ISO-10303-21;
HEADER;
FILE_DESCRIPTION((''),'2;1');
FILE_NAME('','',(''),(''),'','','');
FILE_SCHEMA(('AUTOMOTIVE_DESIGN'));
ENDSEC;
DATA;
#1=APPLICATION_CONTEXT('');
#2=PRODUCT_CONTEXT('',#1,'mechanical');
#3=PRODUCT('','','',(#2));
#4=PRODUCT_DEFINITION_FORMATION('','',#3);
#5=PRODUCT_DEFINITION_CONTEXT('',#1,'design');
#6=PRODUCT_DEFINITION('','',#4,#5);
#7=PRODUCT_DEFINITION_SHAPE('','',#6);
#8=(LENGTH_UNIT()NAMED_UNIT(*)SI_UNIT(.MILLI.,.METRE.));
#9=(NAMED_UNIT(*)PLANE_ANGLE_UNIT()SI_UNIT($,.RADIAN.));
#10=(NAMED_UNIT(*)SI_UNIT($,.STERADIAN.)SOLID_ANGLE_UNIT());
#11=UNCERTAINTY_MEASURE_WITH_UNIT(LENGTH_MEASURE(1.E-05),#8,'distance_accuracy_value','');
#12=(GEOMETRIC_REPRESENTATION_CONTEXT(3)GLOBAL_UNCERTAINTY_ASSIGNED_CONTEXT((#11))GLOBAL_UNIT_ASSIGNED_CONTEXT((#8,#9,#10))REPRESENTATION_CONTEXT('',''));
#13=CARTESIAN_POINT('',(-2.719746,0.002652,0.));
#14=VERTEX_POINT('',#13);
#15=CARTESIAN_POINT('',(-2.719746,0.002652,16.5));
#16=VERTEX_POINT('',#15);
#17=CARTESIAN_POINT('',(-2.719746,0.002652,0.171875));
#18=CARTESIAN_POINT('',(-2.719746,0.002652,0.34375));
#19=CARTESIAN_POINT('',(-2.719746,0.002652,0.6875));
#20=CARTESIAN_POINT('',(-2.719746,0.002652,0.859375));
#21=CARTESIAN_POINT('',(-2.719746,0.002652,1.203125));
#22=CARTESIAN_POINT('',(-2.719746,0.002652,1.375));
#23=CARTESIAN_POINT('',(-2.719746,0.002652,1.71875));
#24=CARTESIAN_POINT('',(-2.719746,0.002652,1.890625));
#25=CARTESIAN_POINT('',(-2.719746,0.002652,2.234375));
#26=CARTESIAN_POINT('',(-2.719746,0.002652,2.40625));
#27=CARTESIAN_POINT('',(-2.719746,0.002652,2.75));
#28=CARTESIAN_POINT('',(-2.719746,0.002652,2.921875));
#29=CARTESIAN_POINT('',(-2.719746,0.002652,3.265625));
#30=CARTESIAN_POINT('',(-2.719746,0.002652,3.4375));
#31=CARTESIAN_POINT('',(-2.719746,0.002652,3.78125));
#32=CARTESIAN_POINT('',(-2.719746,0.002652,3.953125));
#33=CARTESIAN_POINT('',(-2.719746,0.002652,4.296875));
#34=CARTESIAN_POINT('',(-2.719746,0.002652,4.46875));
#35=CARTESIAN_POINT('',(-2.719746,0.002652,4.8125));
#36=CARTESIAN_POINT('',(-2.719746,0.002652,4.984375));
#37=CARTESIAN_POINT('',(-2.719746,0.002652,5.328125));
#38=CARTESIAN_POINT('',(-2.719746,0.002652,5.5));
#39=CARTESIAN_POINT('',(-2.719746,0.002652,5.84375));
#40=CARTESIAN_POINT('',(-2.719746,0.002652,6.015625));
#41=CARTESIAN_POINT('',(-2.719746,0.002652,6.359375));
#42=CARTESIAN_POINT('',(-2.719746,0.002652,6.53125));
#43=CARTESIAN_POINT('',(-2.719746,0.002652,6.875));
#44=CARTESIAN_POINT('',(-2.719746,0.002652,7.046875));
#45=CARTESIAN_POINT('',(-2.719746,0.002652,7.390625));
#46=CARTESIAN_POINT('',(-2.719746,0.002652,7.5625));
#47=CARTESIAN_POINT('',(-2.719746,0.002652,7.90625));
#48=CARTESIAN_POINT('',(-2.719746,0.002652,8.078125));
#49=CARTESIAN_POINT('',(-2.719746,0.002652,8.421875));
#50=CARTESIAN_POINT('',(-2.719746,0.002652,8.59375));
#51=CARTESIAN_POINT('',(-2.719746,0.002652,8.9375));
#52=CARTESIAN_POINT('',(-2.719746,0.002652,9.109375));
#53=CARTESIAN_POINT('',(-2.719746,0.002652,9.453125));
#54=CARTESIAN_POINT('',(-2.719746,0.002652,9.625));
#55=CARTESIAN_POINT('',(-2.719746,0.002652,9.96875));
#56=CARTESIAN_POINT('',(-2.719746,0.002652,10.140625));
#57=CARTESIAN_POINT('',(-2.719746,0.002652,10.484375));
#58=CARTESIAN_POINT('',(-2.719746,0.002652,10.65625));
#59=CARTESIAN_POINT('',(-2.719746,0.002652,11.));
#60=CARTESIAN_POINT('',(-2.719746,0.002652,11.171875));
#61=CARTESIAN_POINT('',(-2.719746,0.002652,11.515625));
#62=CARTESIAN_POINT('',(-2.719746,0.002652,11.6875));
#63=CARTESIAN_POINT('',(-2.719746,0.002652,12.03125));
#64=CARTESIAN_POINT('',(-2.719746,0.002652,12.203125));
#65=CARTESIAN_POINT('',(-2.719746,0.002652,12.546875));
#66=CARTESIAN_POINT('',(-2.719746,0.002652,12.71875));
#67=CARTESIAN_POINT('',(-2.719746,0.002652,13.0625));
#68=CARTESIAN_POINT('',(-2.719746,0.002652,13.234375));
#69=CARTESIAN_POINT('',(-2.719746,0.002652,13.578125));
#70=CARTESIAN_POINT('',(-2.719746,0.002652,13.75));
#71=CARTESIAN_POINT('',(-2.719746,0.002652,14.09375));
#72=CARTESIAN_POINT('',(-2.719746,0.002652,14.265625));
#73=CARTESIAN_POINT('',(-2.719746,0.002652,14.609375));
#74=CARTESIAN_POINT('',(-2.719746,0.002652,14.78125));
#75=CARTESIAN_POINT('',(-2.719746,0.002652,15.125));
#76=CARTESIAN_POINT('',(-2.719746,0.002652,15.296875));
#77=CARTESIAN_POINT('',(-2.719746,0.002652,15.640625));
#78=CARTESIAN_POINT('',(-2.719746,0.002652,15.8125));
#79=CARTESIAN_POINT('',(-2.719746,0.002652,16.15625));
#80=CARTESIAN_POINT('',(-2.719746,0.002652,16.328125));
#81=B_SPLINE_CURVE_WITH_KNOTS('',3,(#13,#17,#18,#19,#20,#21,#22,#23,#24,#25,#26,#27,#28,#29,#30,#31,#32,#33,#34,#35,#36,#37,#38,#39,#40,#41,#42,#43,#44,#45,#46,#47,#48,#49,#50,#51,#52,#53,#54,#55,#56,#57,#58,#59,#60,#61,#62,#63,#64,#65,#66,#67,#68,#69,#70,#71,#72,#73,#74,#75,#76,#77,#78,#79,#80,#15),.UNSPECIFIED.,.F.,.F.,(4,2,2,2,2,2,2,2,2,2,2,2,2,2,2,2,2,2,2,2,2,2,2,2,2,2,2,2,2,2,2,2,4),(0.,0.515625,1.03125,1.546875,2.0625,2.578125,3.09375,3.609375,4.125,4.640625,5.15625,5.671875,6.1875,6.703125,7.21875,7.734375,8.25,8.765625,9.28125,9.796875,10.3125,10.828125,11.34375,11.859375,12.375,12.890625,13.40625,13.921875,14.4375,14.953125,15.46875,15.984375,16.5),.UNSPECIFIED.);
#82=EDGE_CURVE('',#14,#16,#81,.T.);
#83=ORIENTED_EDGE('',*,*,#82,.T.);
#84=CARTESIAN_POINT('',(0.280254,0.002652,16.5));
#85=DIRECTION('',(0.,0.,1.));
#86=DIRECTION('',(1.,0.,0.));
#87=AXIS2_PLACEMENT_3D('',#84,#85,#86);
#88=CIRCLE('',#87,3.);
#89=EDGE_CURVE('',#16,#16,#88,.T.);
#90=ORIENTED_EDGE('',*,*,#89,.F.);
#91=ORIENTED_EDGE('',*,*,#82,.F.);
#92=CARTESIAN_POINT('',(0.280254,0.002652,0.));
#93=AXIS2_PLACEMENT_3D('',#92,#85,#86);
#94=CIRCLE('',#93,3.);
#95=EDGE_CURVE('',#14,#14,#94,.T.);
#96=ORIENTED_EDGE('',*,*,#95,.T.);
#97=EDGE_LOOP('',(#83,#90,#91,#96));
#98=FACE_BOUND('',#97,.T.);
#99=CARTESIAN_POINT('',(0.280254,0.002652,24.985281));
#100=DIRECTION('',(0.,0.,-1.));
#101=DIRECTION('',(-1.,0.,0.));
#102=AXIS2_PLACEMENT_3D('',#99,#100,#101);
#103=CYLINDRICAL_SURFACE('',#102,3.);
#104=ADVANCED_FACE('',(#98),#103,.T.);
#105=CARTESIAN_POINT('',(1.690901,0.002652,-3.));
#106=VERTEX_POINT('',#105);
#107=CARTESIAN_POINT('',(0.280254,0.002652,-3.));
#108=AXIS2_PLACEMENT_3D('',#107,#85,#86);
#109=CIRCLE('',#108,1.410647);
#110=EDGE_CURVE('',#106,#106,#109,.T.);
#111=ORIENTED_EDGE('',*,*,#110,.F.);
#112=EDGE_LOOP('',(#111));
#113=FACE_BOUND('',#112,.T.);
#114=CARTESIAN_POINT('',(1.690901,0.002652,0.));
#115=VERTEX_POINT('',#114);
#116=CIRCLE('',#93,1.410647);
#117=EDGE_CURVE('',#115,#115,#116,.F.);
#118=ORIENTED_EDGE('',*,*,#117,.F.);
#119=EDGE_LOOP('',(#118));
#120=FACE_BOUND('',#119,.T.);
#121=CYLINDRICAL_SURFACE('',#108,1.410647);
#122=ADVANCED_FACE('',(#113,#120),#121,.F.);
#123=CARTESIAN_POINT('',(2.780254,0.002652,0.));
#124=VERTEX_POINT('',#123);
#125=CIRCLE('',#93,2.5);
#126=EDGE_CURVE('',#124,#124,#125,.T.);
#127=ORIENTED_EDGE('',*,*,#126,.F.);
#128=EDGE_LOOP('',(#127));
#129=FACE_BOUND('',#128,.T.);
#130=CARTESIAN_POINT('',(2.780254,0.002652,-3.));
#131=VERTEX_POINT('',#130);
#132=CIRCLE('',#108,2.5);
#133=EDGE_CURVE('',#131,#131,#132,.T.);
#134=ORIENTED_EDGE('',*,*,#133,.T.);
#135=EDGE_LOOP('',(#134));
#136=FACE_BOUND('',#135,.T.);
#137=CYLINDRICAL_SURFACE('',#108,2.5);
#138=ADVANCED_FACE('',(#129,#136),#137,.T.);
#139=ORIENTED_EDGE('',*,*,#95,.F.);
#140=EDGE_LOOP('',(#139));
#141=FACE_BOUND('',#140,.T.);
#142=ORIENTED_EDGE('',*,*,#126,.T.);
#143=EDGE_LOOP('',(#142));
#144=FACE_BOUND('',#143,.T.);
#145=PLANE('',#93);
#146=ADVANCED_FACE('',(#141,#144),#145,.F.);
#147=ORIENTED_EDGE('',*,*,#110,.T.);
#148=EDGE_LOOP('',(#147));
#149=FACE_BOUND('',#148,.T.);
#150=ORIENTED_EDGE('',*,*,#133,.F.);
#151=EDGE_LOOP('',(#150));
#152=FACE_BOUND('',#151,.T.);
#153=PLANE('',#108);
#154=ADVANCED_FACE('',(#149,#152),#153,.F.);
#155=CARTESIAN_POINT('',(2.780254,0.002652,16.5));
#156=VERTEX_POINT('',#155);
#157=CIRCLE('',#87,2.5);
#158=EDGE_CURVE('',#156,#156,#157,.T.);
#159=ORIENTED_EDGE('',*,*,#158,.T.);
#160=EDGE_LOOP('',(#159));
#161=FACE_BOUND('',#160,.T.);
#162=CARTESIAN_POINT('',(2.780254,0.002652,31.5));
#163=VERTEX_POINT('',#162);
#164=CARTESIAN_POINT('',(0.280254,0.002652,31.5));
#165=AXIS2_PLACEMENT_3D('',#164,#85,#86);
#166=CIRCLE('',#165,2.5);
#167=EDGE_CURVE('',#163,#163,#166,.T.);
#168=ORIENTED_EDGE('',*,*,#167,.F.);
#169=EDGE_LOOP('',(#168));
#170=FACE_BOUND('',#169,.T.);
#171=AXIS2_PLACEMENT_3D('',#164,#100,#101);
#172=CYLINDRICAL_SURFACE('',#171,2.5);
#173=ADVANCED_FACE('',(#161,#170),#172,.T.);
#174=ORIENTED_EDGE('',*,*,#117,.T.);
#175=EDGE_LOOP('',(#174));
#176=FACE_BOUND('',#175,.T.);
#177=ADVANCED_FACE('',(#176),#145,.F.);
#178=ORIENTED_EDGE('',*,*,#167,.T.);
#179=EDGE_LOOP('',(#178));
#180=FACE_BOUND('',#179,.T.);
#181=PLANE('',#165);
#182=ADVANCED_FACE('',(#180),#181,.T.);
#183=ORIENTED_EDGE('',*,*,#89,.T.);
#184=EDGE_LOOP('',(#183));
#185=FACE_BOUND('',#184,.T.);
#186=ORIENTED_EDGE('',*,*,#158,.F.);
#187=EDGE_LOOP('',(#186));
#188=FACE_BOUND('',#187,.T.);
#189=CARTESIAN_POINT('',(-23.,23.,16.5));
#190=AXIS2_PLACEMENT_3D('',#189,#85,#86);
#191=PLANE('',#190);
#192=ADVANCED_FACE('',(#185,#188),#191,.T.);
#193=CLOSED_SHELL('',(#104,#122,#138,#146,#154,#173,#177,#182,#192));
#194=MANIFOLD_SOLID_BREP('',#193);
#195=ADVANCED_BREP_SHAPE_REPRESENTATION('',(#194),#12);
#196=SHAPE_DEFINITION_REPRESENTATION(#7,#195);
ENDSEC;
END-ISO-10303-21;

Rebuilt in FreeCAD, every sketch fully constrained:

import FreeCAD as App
import Part
import Sketcher
Q = App.Units.Quantity

doc = App.newDocument("Part")
params = doc.addObject("Spreadsheet::Sheet", "Params")
for row, (alias, value) in enumerate([
    ("sketch1_diameter", "5 mm"),
    ("pad1_length", "3 mm"),
    ("sketch2_diameter", "6 mm"),
    ("pad2_length", "16.5 mm"),
    ("sketch3_diameter", "5 mm"),
    ("pad3_length", "15 mm"),
], start=1):
    params.set(f"A{row}", alias)
    params.set(f"B{row}", "=" + value)
    params.setAlias(f"B{row}", alias)

body = doc.addObject("PartDesign::Body", "Body")

# Sketch on XY plane
sketch1 = doc.addObject("Sketcher::SketchObject", "Sketch")
body.addObject(sketch1)
sketch1.AttachmentSupport = (doc.XY_Plane, [""])
sketch1.MapMode = "FlatFace"
sketch1.addGeometry(Part.Circle(App.Vector(0.3, 0, 0), App.Vector(0, 0, 1), 2.5), False)
sketch1.addGeometry(Part.Circle(App.Vector(0.3, 0, 0), App.Vector(0, 0, 1), 1.4), False)
sketch1.addConstraint(Sketcher.Constraint("Coincident", 1, 3, 0, 3))
sketch1.addConstraint(Sketcher.Constraint("Diameter", 0, Q("5 mm")))
sketch1.addConstraint(Sketcher.Constraint("Diameter", 1, Q("2.821293 mm")))
sketch1.addConstraint(Sketcher.Constraint("DistanceY", -1, 1, 0, 3, Q("0.002652 mm")))
sketch1.addConstraint(Sketcher.Constraint("DistanceX", -1, 1, 0, 3, Q("0.280254 mm")))
sketch1.setExpression("Constraints[1]", "Params.sketch1_diameter")
pad1 = doc.addObject("PartDesign::Pad", "Pad")
body.addObject(pad1)
pad1.Profile = sketch1
pad1.setExpression("Length", "Params.pad1_length")
pad1.Reversed = True

# Sketch on XY plane
sketch2 = doc.addObject("Sketcher::SketchObject", "Sketch001")
body.addObject(sketch2)
sketch2.AttachmentSupport = (doc.XY_Plane, [""])
sketch2.MapMode = "FlatFace"
sketch2.addGeometry(Part.Circle(App.Vector(0.3, 0, 0), App.Vector(0, 0, 1), 3), False)
sketch2.addConstraint(Sketcher.Constraint("Diameter", 0, Q("6 mm")))
sketch2.addConstraint(Sketcher.Constraint("DistanceY", -1, 1, 0, 3, Q("0.002652 mm")))
sketch2.addConstraint(Sketcher.Constraint("DistanceX", -1, 1, 0, 3, Q("0.280254 mm")))
sketch2.setExpression("Constraints[0]", "Params.sketch2_diameter")
pad2 = doc.addObject("PartDesign::Pad", "Pad001")
body.addObject(pad2)
pad2.Profile = sketch2
pad2.setExpression("Length", "Params.pad2_length")

# Sketch on XY plane
sketch3 = doc.addObject("Sketcher::SketchObject", "Sketch002")
body.addObject(sketch3)
sketch3.AttachmentSupport = (doc.XY_Plane, [""])
sketch3.MapMode = "FlatFace"
sketch3.AttachmentOffset = App.Placement(App.Vector(0, 0, 31.5), App.Rotation())
sketch3.addGeometry(Part.Circle(App.Vector(0.3, 0, 0), App.Vector(0, 0, 1), 2.5), False)
sketch3.addConstraint(Sketcher.Constraint("Diameter", 0, Q("5 mm")))
sketch3.addConstraint(Sketcher.Constraint("DistanceY", -1, 1, 0, 3, Q("0.002652 mm")))
sketch3.addConstraint(Sketcher.Constraint("DistanceX", -1, 1, 0, 3, Q("0.280254 mm")))
sketch3.setExpression("Constraints[0]", "Params.sketch3_diameter")
pad3 = doc.addObject("PartDesign::Pad", "Pad002")
body.addObject(pad3)
pad3.Profile = sketch3
pad3.setExpression("Length", "Params.pad3_length")
pad3.Reversed = True

doc.recompute()
